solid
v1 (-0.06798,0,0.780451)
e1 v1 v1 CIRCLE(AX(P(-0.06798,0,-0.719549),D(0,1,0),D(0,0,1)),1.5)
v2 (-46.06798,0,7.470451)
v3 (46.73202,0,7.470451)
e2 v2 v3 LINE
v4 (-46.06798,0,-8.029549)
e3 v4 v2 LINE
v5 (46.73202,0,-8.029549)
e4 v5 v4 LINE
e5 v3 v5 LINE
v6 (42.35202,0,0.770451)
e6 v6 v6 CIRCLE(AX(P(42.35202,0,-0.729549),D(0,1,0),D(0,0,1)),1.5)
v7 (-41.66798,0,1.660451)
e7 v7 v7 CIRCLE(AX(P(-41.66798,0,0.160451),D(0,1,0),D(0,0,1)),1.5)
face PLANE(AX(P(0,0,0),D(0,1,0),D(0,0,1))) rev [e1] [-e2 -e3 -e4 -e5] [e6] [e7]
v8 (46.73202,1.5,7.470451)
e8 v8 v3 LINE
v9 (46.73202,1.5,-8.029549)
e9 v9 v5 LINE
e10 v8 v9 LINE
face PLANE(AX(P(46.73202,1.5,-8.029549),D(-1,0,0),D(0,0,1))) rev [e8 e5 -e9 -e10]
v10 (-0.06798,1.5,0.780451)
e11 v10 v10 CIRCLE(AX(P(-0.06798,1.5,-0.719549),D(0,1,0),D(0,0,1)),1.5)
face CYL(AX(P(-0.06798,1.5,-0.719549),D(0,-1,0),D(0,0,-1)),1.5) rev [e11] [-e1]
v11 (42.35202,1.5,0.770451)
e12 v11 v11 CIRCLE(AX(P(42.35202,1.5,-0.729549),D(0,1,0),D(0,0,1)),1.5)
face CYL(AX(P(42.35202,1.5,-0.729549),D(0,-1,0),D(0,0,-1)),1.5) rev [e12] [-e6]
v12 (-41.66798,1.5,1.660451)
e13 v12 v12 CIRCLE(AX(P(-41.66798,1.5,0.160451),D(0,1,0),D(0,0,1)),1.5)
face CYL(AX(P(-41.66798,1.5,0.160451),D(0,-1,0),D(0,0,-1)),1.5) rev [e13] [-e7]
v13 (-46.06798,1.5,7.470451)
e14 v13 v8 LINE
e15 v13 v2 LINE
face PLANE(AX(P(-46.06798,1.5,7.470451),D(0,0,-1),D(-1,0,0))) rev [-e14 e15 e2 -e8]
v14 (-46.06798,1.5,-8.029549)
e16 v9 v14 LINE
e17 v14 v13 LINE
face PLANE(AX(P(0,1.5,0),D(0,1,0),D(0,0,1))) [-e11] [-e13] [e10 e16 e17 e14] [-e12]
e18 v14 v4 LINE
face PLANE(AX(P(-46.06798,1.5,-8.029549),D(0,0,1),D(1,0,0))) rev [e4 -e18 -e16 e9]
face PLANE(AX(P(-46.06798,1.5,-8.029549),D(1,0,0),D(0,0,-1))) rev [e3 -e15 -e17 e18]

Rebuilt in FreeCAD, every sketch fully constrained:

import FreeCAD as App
import Part
import Sketcher
from FreeCAD import Vector
Q = App.Units.Quantity


def add_polygon(sketch, points):
    """Adds a closed chain of lines whose ends are joined by coincident constraints."""
    first, n = sketch.GeometryCount, len(points)
    for a, b in zip(points, points[1:] + points[:1]):
        sketch.addGeometry(Part.LineSegment(App.Vector(*a, 0), App.Vector(*b, 0)), False)
    for i in range(n):
        sketch.addConstraint(Sketcher.Constraint("Coincident", first + i, 2, first + (i + 1) % n, 1))

doc = App.newDocument("Part")
params = doc.addObject("Spreadsheet::Sheet", "Params")
for row, (alias, value) in enumerate([
    ("sketch1_diameter", "3 mm"),
    ("sketch1_width", "92.8 mm"),
    ("sketch1_height", "15.5 mm"),
    ("pad1_length", "1.5 mm"),
], start=1):
    params.set(f"A{row}", alias)
    params.set(f"B{row}", "=" + value)
    params.setAlias(f"B{row}", alias)

body = doc.addObject("PartDesign::Body", "Body")

# Sketch on XZ plane
sketch1 = doc.addObject("Sketcher::SketchObject", "Sketch")
body.addObject(sketch1)
sketch1.AttachmentSupport = (doc.XZ_Plane, [""])
sketch1.MapMode = "FlatFace"
add_polygon(sketch1, [(-46.1, -8), (-46.1, 7.5), (46.7, 7.5), (46.7, -8)])  # lines 0-3
sketch1.addGeometry(Part.Circle(Vector(-41.7, 0.2, 0), Vector(0, 0, 1), 1.5), False)  # 4
sketch1.addGeometry(Part.Circle(Vector(-0.1, -0.7, 0), Vector(0, 0, 1), 1.5), False)  # 5
sketch1.addGeometry(Part.Circle(Vector(42.4, -0.7, 0), Vector(0, 0, 1), 1.5), False)  # 6
sketch1.addConstraint([
    Sketcher.Constraint("Vertical", 0),
    Sketcher.Constraint("Horizontal", 1),
    Sketcher.Constraint("Vertical", 2),
    Sketcher.Constraint("Horizontal", 3),
    Sketcher.Constraint("Equal", 4, 5),
    Sketcher.Constraint("Equal", 5, 6),
    Sketcher.Constraint("Diameter", 4, Q("3 mm")),
    Sketcher.Constraint("DistanceX", 1, 1, 1, 2, Q("92.8 mm")),
    Sketcher.Constraint("DistanceY", 0, 1, 0, 2, Q("15.5 mm")),
    Sketcher.Constraint("DistanceX", 0, 2, 5, 3, Q("46 mm")),
    Sketcher.Constraint("DistanceX", 4, 3, 5, 3, Q("41.6 mm")),
    Sketcher.Constraint("DistanceY", 6, 3, 0, 2, Q("8.2 mm")),
    Sketcher.Constraint("DistanceY", 5, 3, 4, 3, Q("0.88 mm")),
    Sketcher.Constraint("DistanceX", 5, 3, 6, 3, Q("42.42 mm")),
    Sketcher.Constraint("DistanceY", 6, 3, 5, 3, Q("0.01 mm")),
    Sketcher.Constraint("DistanceX", 4, 3, -1, 1, Q("41.66798 mm")),
    Sketcher.Constraint("DistanceY", -1, 1, 4, 3, Q("0.160451 mm")),
])
sketch1.setExpression("Constraints[10]", "Params.sketch1_diameter")
sketch1.setExpression("Constraints[11]", "Params.sketch1_width")
sketch1.setExpression("Constraints[12]", "Params.sketch1_height")
pad1 = doc.addObject("PartDesign::Pad", "Pad")
body.addObject(pad1)
pad1.Profile = sketch1
pad1.setExpression("Length", "Params.pad1_length")
pad1.Reversed = True

doc.recompute()
